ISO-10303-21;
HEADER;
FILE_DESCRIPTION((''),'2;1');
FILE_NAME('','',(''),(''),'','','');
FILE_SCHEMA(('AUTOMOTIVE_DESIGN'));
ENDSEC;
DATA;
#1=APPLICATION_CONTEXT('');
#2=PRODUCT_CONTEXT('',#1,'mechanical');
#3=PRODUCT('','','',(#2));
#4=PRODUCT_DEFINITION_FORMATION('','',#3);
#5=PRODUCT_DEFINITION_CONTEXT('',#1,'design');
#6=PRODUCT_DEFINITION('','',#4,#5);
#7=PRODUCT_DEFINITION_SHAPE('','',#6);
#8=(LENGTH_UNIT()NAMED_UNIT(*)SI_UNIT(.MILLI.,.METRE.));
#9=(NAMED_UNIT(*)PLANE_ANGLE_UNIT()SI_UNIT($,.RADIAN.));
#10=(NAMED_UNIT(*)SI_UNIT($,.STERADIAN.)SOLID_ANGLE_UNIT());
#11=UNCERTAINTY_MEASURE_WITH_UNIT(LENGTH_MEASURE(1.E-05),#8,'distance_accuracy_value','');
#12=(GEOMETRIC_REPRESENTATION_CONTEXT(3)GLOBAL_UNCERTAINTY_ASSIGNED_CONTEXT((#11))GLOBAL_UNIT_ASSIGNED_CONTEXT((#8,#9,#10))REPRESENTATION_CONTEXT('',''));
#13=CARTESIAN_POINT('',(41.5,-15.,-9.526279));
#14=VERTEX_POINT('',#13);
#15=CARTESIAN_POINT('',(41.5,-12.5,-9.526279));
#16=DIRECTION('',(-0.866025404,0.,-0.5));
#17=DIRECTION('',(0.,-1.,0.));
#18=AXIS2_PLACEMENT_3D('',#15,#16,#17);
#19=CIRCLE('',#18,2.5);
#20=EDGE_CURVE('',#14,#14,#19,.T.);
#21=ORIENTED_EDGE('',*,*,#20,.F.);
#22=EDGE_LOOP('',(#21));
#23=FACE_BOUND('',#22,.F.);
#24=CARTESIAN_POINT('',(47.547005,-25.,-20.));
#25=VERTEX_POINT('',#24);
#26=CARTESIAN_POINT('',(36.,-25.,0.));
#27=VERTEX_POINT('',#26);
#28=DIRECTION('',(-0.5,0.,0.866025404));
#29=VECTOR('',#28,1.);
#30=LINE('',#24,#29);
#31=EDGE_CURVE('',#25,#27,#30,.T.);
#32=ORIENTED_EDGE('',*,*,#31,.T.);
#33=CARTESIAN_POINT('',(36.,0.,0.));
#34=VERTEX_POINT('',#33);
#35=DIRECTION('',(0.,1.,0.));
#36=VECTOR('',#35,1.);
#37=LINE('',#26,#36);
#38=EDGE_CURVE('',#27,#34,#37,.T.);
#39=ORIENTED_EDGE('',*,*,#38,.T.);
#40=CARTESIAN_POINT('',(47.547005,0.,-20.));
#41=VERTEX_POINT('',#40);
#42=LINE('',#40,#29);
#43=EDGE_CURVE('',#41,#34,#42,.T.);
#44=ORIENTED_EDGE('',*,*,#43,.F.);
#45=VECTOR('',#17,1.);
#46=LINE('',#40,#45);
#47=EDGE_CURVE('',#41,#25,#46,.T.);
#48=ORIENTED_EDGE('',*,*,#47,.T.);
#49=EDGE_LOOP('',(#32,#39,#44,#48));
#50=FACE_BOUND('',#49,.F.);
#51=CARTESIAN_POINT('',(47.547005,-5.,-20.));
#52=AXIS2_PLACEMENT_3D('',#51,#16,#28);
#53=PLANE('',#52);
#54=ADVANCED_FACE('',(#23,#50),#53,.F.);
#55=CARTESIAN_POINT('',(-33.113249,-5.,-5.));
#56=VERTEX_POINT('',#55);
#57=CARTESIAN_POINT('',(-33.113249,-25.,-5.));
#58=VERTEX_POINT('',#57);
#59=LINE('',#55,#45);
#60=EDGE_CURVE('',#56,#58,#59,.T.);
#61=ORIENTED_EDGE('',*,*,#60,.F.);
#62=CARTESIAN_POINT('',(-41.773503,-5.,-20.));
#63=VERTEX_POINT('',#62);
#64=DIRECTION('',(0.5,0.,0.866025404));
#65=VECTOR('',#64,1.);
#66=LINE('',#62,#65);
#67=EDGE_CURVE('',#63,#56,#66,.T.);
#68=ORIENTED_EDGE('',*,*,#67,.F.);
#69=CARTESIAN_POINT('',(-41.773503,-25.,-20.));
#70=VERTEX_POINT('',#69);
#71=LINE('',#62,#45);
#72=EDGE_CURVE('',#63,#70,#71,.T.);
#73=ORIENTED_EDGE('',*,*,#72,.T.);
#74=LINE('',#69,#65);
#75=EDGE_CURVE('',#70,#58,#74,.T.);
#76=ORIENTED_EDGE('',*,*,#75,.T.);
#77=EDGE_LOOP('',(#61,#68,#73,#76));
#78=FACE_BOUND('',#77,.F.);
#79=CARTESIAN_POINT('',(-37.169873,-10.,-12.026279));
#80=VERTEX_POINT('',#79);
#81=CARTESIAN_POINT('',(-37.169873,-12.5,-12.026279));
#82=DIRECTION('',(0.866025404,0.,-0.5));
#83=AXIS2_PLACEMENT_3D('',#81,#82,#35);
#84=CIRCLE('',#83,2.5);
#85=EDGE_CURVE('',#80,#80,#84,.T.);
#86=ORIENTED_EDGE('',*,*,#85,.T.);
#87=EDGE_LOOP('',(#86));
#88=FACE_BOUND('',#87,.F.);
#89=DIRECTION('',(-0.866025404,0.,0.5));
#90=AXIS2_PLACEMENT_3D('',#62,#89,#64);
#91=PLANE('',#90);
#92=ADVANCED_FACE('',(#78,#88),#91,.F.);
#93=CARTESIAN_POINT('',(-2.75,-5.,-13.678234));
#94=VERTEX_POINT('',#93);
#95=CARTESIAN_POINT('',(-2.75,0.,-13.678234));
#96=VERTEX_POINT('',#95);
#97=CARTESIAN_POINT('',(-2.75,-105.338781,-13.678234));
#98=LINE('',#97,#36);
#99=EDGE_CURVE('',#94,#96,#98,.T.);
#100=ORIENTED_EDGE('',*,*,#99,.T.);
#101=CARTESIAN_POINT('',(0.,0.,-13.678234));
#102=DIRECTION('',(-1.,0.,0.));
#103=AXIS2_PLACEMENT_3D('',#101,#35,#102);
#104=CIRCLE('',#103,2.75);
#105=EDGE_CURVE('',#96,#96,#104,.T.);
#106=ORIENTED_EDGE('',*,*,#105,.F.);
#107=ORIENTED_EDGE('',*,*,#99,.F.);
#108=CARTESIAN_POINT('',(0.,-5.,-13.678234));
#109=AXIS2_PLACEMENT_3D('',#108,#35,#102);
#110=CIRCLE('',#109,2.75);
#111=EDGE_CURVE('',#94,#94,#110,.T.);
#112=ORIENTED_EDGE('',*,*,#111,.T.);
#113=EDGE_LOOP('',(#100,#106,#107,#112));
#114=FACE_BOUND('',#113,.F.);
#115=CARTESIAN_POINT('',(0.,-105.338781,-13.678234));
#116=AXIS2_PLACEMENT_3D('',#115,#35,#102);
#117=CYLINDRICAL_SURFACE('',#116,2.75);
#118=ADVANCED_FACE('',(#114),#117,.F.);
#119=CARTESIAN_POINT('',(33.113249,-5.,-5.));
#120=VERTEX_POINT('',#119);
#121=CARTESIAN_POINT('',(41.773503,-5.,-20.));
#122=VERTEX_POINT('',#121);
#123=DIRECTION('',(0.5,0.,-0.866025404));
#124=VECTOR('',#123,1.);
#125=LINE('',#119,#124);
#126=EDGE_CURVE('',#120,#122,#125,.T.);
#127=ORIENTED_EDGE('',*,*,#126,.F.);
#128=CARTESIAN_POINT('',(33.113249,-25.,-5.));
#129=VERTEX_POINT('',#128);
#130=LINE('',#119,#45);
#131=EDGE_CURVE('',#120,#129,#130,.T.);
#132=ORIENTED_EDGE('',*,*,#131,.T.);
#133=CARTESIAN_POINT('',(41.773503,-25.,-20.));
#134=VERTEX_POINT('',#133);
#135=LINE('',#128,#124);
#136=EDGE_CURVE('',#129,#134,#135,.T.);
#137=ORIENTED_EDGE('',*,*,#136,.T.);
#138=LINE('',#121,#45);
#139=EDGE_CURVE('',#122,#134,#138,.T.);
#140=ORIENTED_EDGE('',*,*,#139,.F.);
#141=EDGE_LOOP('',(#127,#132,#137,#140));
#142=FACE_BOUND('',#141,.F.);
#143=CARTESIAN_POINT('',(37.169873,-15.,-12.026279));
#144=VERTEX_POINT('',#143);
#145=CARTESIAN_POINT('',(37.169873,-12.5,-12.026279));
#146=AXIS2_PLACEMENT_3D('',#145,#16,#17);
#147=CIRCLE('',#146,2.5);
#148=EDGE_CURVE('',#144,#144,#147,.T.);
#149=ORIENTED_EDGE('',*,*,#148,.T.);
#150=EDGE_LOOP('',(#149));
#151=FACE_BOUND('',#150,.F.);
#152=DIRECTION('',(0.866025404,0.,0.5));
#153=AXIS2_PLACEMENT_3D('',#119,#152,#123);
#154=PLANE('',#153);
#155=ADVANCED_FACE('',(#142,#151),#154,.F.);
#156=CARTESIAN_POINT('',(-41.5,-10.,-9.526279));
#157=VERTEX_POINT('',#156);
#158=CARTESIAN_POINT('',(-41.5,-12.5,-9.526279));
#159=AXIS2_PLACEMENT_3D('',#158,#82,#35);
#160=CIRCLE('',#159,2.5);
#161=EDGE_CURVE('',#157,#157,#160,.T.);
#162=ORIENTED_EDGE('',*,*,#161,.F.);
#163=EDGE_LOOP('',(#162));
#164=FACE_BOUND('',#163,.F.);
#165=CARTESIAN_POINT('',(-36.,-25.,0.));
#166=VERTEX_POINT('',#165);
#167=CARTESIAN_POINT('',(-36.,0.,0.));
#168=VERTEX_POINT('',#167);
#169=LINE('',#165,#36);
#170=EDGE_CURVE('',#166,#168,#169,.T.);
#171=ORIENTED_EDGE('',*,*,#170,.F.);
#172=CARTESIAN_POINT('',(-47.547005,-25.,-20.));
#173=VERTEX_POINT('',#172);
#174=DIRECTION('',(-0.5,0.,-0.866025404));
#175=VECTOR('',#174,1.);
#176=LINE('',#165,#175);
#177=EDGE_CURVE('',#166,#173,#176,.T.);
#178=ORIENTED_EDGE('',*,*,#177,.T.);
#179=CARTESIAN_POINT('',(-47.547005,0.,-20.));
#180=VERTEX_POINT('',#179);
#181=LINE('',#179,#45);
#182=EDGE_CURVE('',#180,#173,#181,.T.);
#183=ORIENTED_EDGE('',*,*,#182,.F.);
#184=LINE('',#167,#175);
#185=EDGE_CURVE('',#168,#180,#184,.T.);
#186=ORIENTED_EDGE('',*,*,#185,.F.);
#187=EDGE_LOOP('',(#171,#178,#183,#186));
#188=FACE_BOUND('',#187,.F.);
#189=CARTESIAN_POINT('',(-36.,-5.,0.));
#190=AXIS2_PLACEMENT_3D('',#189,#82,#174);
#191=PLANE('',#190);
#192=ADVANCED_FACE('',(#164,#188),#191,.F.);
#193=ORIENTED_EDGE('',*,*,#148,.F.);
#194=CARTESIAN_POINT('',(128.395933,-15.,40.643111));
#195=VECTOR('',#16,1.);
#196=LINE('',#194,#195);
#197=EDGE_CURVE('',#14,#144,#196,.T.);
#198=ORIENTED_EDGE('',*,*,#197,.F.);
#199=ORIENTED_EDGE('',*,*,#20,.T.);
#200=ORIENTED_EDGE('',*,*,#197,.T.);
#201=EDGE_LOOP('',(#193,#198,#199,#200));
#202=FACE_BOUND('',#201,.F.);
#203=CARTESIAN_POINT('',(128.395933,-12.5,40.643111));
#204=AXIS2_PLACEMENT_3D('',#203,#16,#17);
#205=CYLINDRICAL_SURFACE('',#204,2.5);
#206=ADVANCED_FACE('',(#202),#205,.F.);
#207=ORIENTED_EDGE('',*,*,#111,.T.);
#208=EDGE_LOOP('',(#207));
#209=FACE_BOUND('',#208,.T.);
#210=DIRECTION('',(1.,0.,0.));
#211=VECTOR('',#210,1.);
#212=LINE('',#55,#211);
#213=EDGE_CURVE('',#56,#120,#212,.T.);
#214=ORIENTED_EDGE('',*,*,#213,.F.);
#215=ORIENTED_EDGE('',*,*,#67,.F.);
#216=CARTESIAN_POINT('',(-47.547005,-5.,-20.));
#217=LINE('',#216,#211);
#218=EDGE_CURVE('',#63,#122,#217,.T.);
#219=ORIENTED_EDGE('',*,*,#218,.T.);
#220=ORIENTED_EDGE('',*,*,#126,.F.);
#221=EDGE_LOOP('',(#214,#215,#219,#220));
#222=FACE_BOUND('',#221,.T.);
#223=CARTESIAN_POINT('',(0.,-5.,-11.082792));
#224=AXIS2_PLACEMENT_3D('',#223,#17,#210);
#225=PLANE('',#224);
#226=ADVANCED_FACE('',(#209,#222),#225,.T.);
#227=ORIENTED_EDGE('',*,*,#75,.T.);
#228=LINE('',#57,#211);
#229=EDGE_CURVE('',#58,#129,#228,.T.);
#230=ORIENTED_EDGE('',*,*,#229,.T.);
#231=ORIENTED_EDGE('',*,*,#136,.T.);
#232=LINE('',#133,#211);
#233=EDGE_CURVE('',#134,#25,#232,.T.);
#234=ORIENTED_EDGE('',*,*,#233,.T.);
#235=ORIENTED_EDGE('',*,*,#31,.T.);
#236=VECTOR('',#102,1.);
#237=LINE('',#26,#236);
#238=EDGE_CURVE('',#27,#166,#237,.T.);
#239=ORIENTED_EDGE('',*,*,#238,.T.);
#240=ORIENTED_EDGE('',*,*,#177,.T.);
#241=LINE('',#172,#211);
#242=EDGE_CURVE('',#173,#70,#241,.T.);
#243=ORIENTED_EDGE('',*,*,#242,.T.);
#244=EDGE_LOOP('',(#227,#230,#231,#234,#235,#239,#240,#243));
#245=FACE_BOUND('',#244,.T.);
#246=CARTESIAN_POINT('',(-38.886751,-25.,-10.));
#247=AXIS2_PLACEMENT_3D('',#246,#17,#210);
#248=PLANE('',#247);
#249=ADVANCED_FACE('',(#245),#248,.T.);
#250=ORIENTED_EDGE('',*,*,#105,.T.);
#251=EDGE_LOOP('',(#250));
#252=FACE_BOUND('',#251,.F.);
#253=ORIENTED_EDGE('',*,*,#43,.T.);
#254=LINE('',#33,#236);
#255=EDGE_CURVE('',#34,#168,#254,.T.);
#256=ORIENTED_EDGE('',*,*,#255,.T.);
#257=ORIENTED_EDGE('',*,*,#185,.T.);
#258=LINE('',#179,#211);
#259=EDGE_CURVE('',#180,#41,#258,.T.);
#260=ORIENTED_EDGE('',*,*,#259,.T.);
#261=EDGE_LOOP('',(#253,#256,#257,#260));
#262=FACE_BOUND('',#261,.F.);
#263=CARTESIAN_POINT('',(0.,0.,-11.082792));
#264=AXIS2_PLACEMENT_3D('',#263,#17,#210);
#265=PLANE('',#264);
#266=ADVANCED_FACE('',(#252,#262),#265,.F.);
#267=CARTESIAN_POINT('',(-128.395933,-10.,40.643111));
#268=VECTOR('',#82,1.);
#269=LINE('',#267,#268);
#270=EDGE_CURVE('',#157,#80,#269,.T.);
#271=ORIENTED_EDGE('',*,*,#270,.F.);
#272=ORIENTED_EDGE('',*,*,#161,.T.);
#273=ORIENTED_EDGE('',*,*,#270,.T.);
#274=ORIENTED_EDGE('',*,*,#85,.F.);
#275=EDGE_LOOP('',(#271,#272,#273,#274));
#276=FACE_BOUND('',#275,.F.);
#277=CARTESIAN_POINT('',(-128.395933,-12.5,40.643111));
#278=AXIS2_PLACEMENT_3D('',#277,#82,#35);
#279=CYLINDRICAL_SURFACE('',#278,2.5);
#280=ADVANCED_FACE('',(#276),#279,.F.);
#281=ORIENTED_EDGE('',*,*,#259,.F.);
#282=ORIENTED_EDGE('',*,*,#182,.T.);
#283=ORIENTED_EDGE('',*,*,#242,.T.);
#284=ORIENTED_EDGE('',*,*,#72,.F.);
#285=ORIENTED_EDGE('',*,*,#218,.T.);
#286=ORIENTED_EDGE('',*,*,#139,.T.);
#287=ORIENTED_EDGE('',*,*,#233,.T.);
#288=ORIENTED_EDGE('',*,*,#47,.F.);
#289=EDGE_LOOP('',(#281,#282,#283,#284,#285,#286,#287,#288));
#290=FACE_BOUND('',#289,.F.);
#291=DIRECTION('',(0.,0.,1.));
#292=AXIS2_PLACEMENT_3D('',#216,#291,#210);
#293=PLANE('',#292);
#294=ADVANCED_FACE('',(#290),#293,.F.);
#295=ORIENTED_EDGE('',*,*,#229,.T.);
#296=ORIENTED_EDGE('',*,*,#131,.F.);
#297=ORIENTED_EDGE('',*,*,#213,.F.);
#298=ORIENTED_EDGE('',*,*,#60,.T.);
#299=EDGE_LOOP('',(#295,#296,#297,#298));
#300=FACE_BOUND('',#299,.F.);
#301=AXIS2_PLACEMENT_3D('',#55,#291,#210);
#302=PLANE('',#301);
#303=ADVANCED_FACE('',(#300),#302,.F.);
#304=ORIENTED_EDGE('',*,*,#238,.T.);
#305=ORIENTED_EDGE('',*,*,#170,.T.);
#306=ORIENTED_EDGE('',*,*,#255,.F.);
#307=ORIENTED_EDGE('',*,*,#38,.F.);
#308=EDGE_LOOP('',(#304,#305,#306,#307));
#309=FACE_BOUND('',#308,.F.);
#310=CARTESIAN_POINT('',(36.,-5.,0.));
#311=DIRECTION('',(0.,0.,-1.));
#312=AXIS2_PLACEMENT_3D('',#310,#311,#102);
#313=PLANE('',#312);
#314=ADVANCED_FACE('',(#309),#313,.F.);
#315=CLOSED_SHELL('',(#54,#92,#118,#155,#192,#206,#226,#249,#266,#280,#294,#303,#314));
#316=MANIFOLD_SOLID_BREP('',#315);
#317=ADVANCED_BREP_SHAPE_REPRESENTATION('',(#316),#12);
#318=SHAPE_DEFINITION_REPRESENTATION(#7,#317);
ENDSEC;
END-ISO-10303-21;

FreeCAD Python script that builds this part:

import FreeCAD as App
import Part
import Sketcher
from FreeCAD import Vector
Q = App.Units.Quantity

doc = App.newDocument("Part")
body = doc.addObject("PartDesign::Body", "Body")

sketch1 = body.newObject("Sketcher::SketchObject", "Sketch")
sketch1.AttachmentSupport = (doc.getObject("XZ_Plane"), [""])
sketch1.MapMode = "FlatFace"
sketch1.addGeometry([
    Part.LineSegment(Vector(36, 0, 0), Vector(-36, 0, 0)),
    Part.LineSegment(Vector(-36, 0, 0), Vector(-48, -20, 0)),
    Part.LineSegment(Vector(-48, -20, 0), Vector(48, -20, 0)),
    Part.LineSegment(Vector(48, -20, 0), Vector(36, 0, 0)),
], False)
sketch1.addConstraint([
    Sketcher.Constraint("Coincident", 0, 2, 1, 1),
    Sketcher.Constraint("Coincident", 1, 2, 2, 1),
    Sketcher.Constraint("Coincident", 2, 2, 3, 1),
    Sketcher.Constraint("Coincident", 3, 2, 0, 1),
    Sketcher.Constraint("Horizontal", 0),
    Sketcher.Constraint("Horizontal", 2),
    Sketcher.Constraint("Symmetric", 0, 2, 3, 2, -1, 1),
    Sketcher.Constraint("Equal", 1, 3),
    Sketcher.Constraint("DistanceX", 0, 2, 0, 1, Q("72 mm")),
    Sketcher.Constraint("Angle", 1, Q("-120 deg")),
    Sketcher.Constraint("DistanceY", 1, 2, -1, 1, Q("20 mm")),
])
pad1 = body.newObject("PartDesign::Pad", "Pad")
pad1.Profile = sketch1
pad1.Length = 5

sketch2 = body.newObject("Sketcher::SketchObject", "Sketch001")
sketch2.AttachmentSupport = (doc.getObject("XZ_Plane"), [""])
sketch2.MapMode = "FlatFace"
sketch2.AttachmentOffset = App.Placement(Vector(0, 0, 5), App.Rotation())
sketch2.addGeometry([
    Part.LineSegment(Vector(-36, 0, 0), Vector(-48, -20, 0)),
    Part.LineSegment(Vector(-48, -20, 0), Vector(-42, -20, 0)),
    Part.LineSegment(Vector(-42, -20, 0), Vector(-33, -5, 0)),
    Part.LineSegment(Vector(-33, -5, 0), Vector(33, -5, 0)),
    Part.LineSegment(Vector(33, -5, 0), Vector(42, -20, 0)),
    Part.LineSegment(Vector(42, -20, 0), Vector(48, -20, 0)),
    Part.LineSegment(Vector(48, -20, 0), Vector(36, 0, 0)),
    Part.LineSegment(Vector(36, 0, 0), Vector(-36, 0, 0)),
], False)
sketch2.addConstraint([
    Sketcher.Constraint("Coincident", 0, 2, 1, 1),
    Sketcher.Constraint("Coincident", 1, 2, 2, 1),
    Sketcher.Constraint("Coincident", 2, 2, 3, 1),
    Sketcher.Constraint("Coincident", 3, 2, 4, 1),
    Sketcher.Constraint("Coincident", 4, 2, 5, 1),
    Sketcher.Constraint("Coincident", 5, 2, 6, 1),
    Sketcher.Constraint("Coincident", 6, 2, 7, 1),
    Sketcher.Constraint("Coincident", 7, 2, 0, 1),
    Sketcher.Constraint("Horizontal", 1),
    Sketcher.Constraint("Horizontal", 3),
    Sketcher.Constraint("Horizontal", 5),
    Sketcher.Constraint("Horizontal", 7),
    Sketcher.Constraint("Symmetric", 6, 2, 7, 2, -1, 1),
    Sketcher.Constraint("Symmetric", 1, 2, 4, 2, -2),
    Sketcher.Constraint("Parallel", 0, 2),
    Sketcher.Constraint("Parallel", 4, 6),
    Sketcher.Constraint("Equal", 1, 5),
    Sketcher.Constraint("DistanceX", 7, 2, 7, 1, Q("72 mm")),
    Sketcher.Constraint("Angle", 0, Q("-120 deg")),
    Sketcher.Constraint("DistanceY", 0, 2, -1, 1, Q("20 mm")),
    Sketcher.Constraint("DistanceY", 2, 2, -1, 1, Q("5 mm")),
    Sketcher.Constraint("DistanceX", 1, 1, 1, 2, Q("5.773503 mm")),
])
pad2 = body.newObject("PartDesign::Pad", "Pad001")
pad2.Profile = sketch2
pad2.Length = 20

sketch3 = body.newObject("Sketcher::SketchObject", "Sketch002")
sketch3.AttachmentSupport = (doc.getObject("XZ_Plane"), [""])
sketch3.MapMode = "FlatFace"
sketch3.AttachmentOffset = App.Placement(Vector(0, 0, 5), App.Rotation())
sketch3.addGeometry(Part.Circle(Vector(0, -13.7, 0), Vector(0, 0, 1), 2.8), False)
sketch3.addConstraint([
    Sketcher.Constraint("PointOnObject", 0, 3, -2),
    Sketcher.Constraint("Diameter", 0, Q("5.5 mm")),
    Sketcher.Constraint("DistanceY", 0, 3, -1, 1, Q("13.678234 mm")),
])
doc.recompute()
hole = body.newObject("PartDesign::Hole", "Hole")
hole.Profile = sketch3
hole.ThreadType = "None"
hole.Diameter = 5.5
hole.DepthType = "ThroughAll"

sketch4 = body.newObject("Sketcher::SketchObject", "Sketch003")
sketch4.Placement = App.Placement(Vector(27, 0, 15.588457), App.Rotation(Vector(0, 1, 0), Vector(-0.5, 0, 0.866025404), Vector(0.866025404, 0, 0.5), "ZXY"))
sketch4.addGeometry(Part.Circle(Vector(-12.5, -29, 0), Vector(0, 0, 1), 2.5), False)
sketch4.addConstraint([
    Sketcher.Constraint("Diameter", 0, Q("5 mm")),
    Sketcher.Constraint("DistanceY", 0, 3, -1, 1, Q("29 mm")),
    Sketcher.Constraint("DistanceX", 0, 3, -1, 1, Q("12.5 mm")),
])
doc.recompute()
hole2 = body.newObject("PartDesign::Hole", "Hole001")
hole2.Profile = sketch4
hole2.ThreadType = "None"
hole2.Diameter = 5
hole2.DepthType = "ThroughAll"

sketch5 = body.newObject("Sketcher::SketchObject", "Sketch004")
sketch5.Placement = App.Placement(Vector(-27, 0, 15.588457), App.Rotation(Vector(0, -1, 0), Vector(0.5, 0, 0.866025404), Vector(-0.866025404, 0, 0.5), "ZXY"))
sketch5.addGeometry(Part.Circle(Vector(12.5, -29, 0), Vector(0, 0, 1), 2.5), False)
sketch5.addConstraint([
    Sketcher.Constraint("Diameter", 0, Q("5 mm")),
    Sketcher.Constraint("DistanceY", 0, 3, -1, 1, Q("29 mm")),
    Sketcher.Constraint("DistanceX", -1, 1, 0, 3, Q("12.5 mm")),
])
doc.recompute()
hole3 = body.newObject("PartDesign::Hole", "Hole002")
hole3.Profile = sketch5
hole3.ThreadType = "None"
hole3.Diameter = 5
hole3.DepthType = "ThroughAll"

doc.recompute()
